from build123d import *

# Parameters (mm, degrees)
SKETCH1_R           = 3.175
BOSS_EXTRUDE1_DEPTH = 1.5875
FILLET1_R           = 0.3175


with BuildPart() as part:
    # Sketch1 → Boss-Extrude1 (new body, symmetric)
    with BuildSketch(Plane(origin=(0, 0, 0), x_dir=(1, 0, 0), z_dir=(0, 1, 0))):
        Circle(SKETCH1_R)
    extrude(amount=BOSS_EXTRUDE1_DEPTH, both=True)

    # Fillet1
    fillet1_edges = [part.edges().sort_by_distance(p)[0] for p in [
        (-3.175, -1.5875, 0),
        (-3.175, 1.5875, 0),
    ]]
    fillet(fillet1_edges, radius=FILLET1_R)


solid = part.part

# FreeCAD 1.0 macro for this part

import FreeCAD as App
import Part
import Sketcher
Q = App.Units.Quantity


def edges_at(feature, points):
    """Names of the edges that pass closest to the given points."""
    edges = feature.Shape.Edges
    near = lambda p: min(range(len(edges)), key=lambda i: edges[i].distToShape(Part.Vertex(*p))[0])
    return sorted({f"Edge{near(p) + 1}" for p in points})

doc = App.newDocument("Part")
body = doc.addObject("PartDesign::Body", "Body")

sketch1 = doc.addObject("Sketcher::SketchObject", "Sketch")
body.addObject(sketch1)
sketch1.AttachmentSupport = (doc.XZ_Plane, [""])
sketch1.MapMode = "FlatFace"
sketch1.addGeometry(Part.Circle(App.Vector(0, 0, 0), App.Vector(0, 0, 1), 3.2), False)
sketch1.addConstraint([
    Sketcher.Constraint("Coincident", 0, 3, -1, 1),
    Sketcher.Constraint("Diameter", 0, Q("0.25 in")),
])
pad1 = doc.addObject("PartDesign::Pad", "Pad")
body.addObject(pad1)
pad1.Profile = sketch1
pad1.Length = Q("0.125 in")
pad1.Midplane = True
doc.recompute()

fillet = doc.addObject("PartDesign::Fillet", "Fillet")
body.addObject(fillet)
fillet.Base = (pad1, edges_at(pad1, [(-3.175, -1.587, 0), (-3.175, 1.587, 0)]))
fillet.Radius = Q("0.0125 in")

doc.recompute()
